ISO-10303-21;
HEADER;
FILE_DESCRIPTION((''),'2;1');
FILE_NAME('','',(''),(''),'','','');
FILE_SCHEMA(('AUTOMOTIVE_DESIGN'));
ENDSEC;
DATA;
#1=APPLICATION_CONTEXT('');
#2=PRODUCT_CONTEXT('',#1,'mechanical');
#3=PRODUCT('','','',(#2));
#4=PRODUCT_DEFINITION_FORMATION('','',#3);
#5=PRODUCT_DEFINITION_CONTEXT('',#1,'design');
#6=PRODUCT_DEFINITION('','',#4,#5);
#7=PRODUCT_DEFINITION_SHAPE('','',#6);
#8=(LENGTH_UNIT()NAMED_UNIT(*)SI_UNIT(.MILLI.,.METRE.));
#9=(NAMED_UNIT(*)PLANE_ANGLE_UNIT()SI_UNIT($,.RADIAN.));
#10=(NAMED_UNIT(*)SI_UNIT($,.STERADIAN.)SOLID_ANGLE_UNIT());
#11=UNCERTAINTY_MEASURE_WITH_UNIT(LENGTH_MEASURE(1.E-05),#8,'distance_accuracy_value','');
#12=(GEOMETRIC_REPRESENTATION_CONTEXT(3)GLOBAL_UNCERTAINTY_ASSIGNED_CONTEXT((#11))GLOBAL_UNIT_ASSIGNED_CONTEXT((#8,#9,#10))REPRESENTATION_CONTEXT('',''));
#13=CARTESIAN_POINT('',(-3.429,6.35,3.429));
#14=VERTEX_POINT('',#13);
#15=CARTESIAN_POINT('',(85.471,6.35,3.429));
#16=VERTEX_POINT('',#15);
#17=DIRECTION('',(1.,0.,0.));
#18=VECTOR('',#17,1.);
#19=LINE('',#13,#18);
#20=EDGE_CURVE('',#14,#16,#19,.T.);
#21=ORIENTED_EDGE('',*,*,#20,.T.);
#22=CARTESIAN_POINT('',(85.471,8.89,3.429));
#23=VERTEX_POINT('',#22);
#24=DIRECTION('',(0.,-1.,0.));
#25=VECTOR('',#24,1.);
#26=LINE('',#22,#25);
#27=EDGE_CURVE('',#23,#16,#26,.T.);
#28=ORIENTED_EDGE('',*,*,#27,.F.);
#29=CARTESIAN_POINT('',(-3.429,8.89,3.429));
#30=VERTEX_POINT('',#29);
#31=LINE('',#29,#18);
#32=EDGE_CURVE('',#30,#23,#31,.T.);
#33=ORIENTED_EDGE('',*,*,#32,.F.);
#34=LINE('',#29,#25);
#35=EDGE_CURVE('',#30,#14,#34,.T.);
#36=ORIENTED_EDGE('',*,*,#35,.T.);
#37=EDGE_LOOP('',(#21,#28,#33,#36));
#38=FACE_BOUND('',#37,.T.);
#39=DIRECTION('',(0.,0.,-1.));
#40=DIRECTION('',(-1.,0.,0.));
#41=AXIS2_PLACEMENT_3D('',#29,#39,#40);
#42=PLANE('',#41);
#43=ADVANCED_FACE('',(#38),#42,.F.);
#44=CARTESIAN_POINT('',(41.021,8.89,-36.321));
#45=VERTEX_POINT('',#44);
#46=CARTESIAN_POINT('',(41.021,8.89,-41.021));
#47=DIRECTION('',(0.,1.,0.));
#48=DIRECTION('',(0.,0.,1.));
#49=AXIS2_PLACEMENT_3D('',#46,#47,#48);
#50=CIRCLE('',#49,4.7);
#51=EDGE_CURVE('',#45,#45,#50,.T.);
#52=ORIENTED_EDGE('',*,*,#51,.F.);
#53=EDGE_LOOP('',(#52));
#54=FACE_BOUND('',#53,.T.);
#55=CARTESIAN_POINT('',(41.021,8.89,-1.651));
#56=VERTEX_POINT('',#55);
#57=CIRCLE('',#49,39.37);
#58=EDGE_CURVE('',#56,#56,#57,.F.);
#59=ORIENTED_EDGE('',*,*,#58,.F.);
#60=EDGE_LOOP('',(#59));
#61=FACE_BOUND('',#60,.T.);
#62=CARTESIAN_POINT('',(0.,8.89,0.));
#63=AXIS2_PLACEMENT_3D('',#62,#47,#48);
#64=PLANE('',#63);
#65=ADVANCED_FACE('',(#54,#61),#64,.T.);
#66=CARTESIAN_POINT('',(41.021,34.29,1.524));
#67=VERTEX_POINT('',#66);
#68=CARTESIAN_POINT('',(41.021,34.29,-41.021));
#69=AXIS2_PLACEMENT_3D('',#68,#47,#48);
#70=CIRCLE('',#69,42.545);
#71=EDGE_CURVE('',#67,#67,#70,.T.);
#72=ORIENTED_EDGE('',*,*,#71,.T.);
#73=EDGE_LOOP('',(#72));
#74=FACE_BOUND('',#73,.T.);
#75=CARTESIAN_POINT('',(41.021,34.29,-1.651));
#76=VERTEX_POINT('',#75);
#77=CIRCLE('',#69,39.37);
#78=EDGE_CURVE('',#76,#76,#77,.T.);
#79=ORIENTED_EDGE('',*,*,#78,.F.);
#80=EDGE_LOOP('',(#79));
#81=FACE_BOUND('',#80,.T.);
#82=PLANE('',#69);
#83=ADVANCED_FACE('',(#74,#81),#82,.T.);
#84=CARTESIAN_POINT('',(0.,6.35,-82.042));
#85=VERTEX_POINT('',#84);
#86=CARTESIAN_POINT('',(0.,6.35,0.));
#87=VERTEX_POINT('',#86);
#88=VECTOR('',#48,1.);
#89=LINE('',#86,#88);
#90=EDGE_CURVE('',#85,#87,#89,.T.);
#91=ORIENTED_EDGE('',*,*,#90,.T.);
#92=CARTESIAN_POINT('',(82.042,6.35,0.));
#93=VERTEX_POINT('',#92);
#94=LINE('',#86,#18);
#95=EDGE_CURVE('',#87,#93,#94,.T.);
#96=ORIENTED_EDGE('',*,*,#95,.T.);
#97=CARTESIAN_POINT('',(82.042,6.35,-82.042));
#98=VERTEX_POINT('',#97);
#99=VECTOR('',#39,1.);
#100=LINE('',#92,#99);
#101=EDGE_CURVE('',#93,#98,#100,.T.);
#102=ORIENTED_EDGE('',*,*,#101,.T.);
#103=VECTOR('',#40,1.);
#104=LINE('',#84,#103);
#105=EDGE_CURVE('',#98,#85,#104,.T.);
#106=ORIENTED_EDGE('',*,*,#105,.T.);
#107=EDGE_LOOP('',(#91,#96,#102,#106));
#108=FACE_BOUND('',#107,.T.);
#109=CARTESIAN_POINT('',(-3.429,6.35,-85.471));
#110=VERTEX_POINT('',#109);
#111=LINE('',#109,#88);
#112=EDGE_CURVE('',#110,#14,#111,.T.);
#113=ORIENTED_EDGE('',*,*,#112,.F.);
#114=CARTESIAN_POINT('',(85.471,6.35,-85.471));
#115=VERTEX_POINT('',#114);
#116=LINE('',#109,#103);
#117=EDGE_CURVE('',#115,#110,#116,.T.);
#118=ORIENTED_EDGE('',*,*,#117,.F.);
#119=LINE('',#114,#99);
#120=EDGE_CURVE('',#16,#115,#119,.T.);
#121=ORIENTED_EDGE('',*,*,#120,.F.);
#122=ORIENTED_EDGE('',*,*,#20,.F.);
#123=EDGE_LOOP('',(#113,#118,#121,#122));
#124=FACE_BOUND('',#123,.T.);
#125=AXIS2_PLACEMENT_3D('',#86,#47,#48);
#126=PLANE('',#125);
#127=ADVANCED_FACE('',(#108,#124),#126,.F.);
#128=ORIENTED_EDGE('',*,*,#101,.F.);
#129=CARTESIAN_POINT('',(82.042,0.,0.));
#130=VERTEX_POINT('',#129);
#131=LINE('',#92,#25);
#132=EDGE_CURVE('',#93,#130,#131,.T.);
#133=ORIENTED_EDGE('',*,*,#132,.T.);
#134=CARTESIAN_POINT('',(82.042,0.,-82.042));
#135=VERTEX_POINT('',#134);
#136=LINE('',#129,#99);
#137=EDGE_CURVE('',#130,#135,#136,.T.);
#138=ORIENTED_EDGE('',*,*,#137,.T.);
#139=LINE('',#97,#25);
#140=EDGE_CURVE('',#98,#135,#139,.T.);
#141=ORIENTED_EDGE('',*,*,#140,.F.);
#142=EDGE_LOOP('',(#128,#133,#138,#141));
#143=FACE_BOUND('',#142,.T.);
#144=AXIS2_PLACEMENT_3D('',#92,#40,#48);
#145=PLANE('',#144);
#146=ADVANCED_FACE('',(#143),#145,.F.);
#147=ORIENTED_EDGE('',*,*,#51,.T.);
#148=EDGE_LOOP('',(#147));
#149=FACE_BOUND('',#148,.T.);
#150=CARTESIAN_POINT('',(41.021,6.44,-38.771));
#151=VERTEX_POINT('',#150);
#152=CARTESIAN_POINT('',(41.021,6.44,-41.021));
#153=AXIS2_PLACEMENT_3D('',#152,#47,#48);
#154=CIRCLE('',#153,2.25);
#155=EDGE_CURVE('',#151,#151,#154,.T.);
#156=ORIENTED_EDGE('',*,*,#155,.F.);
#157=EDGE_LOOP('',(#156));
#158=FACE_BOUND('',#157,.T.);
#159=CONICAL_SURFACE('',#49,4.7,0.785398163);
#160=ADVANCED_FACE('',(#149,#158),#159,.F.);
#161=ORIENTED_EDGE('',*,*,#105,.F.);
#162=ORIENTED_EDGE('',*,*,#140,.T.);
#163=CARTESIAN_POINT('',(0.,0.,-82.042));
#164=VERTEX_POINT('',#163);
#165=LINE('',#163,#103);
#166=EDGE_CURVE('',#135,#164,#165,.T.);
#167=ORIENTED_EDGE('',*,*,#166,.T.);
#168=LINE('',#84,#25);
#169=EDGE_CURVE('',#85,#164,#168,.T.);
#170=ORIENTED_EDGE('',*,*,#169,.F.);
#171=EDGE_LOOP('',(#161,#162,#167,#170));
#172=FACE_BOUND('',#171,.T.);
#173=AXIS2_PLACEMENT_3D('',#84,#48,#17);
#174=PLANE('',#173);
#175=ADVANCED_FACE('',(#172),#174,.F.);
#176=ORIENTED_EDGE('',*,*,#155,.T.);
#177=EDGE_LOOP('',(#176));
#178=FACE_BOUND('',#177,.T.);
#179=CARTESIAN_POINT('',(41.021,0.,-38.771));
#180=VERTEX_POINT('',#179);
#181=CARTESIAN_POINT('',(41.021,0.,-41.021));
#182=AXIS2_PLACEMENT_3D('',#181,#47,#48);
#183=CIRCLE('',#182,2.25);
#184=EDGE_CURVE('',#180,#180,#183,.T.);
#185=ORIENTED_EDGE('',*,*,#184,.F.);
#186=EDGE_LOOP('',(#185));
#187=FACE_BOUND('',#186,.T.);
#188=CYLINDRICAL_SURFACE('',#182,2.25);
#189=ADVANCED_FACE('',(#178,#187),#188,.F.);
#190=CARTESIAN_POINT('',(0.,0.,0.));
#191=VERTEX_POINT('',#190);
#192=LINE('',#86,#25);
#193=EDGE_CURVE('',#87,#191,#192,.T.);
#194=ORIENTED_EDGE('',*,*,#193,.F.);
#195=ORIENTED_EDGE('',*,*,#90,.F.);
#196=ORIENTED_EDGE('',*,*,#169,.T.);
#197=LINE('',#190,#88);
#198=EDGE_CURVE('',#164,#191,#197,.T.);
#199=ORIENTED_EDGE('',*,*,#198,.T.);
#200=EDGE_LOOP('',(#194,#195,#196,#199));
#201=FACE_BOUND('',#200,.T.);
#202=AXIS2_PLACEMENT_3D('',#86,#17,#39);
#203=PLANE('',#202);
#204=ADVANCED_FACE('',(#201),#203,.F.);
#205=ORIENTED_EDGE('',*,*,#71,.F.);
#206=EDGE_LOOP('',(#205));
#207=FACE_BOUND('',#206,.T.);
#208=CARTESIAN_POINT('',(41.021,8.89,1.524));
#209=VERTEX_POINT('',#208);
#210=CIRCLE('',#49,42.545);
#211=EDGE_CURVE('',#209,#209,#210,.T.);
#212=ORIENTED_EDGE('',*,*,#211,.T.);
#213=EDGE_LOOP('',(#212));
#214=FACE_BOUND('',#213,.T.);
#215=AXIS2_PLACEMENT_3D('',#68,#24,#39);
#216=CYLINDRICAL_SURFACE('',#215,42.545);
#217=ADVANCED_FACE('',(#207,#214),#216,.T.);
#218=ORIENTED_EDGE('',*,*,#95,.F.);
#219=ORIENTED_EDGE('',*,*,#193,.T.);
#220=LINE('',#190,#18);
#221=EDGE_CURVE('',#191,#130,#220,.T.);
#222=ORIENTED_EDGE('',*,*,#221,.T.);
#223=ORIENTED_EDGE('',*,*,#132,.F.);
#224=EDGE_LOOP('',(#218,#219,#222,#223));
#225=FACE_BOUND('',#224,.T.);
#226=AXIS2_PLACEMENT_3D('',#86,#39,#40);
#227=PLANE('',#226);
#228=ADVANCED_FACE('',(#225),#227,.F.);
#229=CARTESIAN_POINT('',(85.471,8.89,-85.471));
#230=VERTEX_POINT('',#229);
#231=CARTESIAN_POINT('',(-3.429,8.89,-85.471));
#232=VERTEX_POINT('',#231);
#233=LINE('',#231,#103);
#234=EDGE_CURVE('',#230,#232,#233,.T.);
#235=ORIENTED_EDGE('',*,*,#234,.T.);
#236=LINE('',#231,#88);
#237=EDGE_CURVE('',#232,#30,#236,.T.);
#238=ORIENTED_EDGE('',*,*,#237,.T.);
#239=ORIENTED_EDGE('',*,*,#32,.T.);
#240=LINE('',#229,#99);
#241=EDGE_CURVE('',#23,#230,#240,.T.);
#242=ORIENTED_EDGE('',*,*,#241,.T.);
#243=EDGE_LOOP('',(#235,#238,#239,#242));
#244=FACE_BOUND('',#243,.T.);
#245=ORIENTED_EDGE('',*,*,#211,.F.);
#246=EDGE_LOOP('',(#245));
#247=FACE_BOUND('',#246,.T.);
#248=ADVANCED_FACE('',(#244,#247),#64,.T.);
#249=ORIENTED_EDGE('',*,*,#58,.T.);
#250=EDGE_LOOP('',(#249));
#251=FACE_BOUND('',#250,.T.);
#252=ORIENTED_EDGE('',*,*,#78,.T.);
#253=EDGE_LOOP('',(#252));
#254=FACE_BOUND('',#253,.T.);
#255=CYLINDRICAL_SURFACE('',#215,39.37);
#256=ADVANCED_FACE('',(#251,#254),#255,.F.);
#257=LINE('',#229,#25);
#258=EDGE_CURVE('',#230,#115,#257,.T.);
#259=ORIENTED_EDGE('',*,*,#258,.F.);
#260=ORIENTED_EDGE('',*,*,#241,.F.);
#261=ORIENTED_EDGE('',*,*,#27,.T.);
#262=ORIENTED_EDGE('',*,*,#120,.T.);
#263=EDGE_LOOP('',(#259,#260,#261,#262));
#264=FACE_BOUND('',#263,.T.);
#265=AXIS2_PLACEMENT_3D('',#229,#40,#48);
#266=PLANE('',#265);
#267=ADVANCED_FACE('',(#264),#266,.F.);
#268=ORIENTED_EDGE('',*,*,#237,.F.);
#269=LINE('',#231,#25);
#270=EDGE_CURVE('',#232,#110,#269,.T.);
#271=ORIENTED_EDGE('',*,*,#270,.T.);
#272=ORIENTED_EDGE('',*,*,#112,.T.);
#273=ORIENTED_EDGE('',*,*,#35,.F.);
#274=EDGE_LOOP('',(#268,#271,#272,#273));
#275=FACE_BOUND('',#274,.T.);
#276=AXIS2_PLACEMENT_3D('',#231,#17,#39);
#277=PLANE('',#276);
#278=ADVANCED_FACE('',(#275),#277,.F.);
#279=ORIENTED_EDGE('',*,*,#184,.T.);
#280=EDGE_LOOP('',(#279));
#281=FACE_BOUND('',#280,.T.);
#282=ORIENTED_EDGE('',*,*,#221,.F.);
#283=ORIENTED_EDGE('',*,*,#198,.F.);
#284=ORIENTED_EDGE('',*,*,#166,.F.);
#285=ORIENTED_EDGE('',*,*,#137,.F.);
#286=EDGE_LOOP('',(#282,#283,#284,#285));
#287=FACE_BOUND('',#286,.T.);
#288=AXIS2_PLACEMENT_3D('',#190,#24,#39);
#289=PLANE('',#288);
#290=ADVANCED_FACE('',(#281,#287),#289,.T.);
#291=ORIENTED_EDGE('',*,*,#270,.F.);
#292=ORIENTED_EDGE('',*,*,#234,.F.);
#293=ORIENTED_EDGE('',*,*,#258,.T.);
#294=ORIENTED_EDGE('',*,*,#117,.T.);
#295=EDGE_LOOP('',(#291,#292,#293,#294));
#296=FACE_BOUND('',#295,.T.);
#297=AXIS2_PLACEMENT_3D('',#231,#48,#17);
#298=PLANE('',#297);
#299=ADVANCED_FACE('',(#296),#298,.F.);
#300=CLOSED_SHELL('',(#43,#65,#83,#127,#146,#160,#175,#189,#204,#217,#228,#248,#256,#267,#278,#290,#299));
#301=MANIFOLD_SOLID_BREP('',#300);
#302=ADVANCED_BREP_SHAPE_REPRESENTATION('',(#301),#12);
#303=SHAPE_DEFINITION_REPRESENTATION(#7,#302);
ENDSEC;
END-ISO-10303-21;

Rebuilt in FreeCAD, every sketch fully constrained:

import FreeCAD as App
import Part
import Sketcher

V = App.Vector
Q = App.Units.Quantity


def add_polygon(sketch, points):
    """Adds a closed chain of lines whose ends are joined by coincident constraints."""
    first, n = sketch.GeometryCount, len(points)
    for a, b in zip(points, points[1:] + points[:1]):
        sketch.addGeometry(Part.LineSegment(App.Vector(*a, 0), App.Vector(*b, 0)), False)
    for i in range(n):
        sketch.addConstraint(Sketcher.Constraint("Coincident", first + i, 2, first + (i + 1) % n, 1))

doc = App.newDocument("Part")
params = doc.addObject("Spreadsheet::Sheet", "Params")
for row, (alias, value) in enumerate([
    ("sketch1_width", "3.23 in"),
    ("pad1_length", "0.25 in"),
    ("sketch2_width", "3.5 in"),
    ("pad2_length", "0.1 in"),
    ("sketch4_diameter", "3.1 in"),
    ("sketch4_diameter2", "3.35 in"),
    ("pad3_length", "1 in"),
    ("hole_diameter", "4.5 mm"),
    ("hole_depth", "3.99999 mm"),
    ("hole_csink_diameter", "9.4 mm"),
], start=1):
    params.set(f"A{row}", alias)
    params.set(f"B{row}", "=" + value)
    params.setAlias(f"B{row}", alias)

body = doc.addObject("PartDesign::Body", "Body")

sketch1 = body.newObject("Sketcher::SketchObject", "Sketch")
sketch1.AttachmentSupport = (doc.getObject("XZ_Plane"), [""])
sketch1.MapMode = "FlatFace"
add_polygon(sketch1, [(0, -82), (0, 0), (82, 0), (82, -82)])
sketch1.addConstraint([
    Sketcher.Constraint("Vertical", 0),
    Sketcher.Constraint("Horizontal", 1),
    Sketcher.Constraint("Vertical", 2),
    Sketcher.Constraint("Horizontal", 3),
    Sketcher.Constraint("Coincident", 0, 2, -1, 1),
    Sketcher.Constraint("Equal", 3, 0),
    Sketcher.Constraint("DistanceX", 1, 1, 1, 2, Q("3.23 in")),
])
sketch1.setExpression("Constraints[10]", "Params.sketch1_width")
pad1 = body.newObject("PartDesign::Pad", "Pad")
pad1.Profile = sketch1
pad1.setExpression("Length", "Params.pad1_length")
pad1.Reversed = True

sketch2 = body.newObject("Sketcher::SketchObject", "Sketch001")
sketch2.AttachmentSupport = (doc.getObject("XZ_Plane"), [""])
sketch2.MapMode = "FlatFace"
sketch2.AttachmentOffset = App.Placement(V(0, 0, -0.25 * 25.4), App.Rotation())
add_polygon(sketch2, [(-3, -85), (-3, 3), (85, 3), (85, -85)])
sketch2.addConstraint([
    Sketcher.Constraint("Vertical", 0),
    Sketcher.Constraint("Horizontal", 1),
    Sketcher.Constraint("Vertical", 2),
    Sketcher.Constraint("Horizontal", 3),
    Sketcher.Constraint("Equal", 3, 0),
    Sketcher.Constraint("DistanceX", 1, 1, 1, 2, Q("3.5 in")),
    Sketcher.Constraint("DistanceX", 0, 2, -1, 1, Q("0.135 in")),
    Sketcher.Constraint("DistanceY", -1, 1, 0, 2, Q("0.135 in")),
])
sketch2.setExpression("Constraints[9]", "Params.sketch2_width")
pad2 = body.newObject("PartDesign::Pad", "Pad001")
pad2.Profile = sketch2
pad2.setExpression("Length", "Params.pad2_length")
pad2.Reversed = True

sketch3 = body.newObject("Sketcher::SketchObject", "Sketch002")
sketch3.AttachmentSupport = (doc.getObject("XZ_Plane"), [""])
sketch3.MapMode = "FlatFace"
sketch3.AttachmentOffset = App.Placement(V(0, 0, -0.35 * 25.4), App.Rotation())
sketch3.addGeometry(Part.Circle(V(41, -41, 0), V(0, 0, 1), 2.2), False)
sketch3.addConstraint([
    Sketcher.Constraint("Diameter", 0, 4.5),
    Sketcher.Constraint("DistanceX", -1, 1, 0, 3, Q("1.615 in")),
    Sketcher.Constraint("DistanceY", 0, 3, -1, 1, Q("1.615 in")),
])
pocket1 = body.newObject("PartDesign::Pocket", "Pocket")
pocket1.Profile = sketch3
pocket1.Type = "ThroughAll"
pocket1.Reversed = True

sketch4 = body.newObject("Sketcher::SketchObject", "Sketch003")
sketch4.AttachmentSupport = (doc.getObject("XZ_Plane"), [""])
sketch4.MapMode = "FlatFace"
sketch4.AttachmentOffset = App.Placement(V(0, 0, -0.35 * 25.4), App.Rotation())
sketch4.addGeometry([
    Part.Circle(V(41, -41, 0), V(0, 0, 1), 43),
    Part.Circle(V(41, -41, 0), V(0, 0, 1), 39),
], False)
sketch4.addConstraint([
    Sketcher.Constraint("Coincident", 1, 3, 0, 3),
    Sketcher.Constraint("Diameter", 1, Q("3.1 in")),
    Sketcher.Constraint("Diameter", 0, Q("3.35 in")),
    Sketcher.Constraint("DistanceX", -1, 1, 0, 3, Q("1.615 in")),
    Sketcher.Constraint("DistanceY", 0, 3, -1, 1, Q("1.615 in")),
])
sketch4.setExpression("Constraints[1]", "Params.sketch4_diameter")
sketch4.setExpression("Constraints[2]", "Params.sketch4_diameter2")
pad3 = body.newObject("PartDesign::Pad", "Pad002")
pad3.Profile = sketch4
pad3.setExpression("Length", "Params.pad3_length")
pad3.Reversed = True

sketch5 = body.newObject("Sketcher::SketchObject", "Sketch004")
sketch5.AttachmentSupport = (doc.getObject("XZ_Plane"), [""])
sketch5.MapMode = "FlatFace"
sketch5.AttachmentOffset = App.Placement(V(0, 0, -0.35 * 25.4), App.Rotation())
sketch5.addGeometry(Part.Circle(V(41, -41, 0), V(0, 0, 1), 2.2), False)
sketch5.addConstraint([
    Sketcher.Constraint("Diameter", 0, 4.5),
    Sketcher.Constraint("DistanceX", -1, 1, 0, 3, Q("1.615 in")),
    Sketcher.Constraint("DistanceY", 0, 3, -1, 1, Q("1.615 in")),
])
doc.recompute()
hole = body.newObject("PartDesign::Hole", "Hole")
hole.Profile = sketch5
hole.ThreadType = "None"
hole.setExpression("Diameter", "Params.hole_diameter")
hole.DepthType = "Dimension"
hole.setExpression("Depth", "Params.hole_depth")
hole.DrillPoint = "Angled"
hole.DrillPointAngle = 118
hole.HoleCutType = "Countersink"
hole.setExpression("HoleCutDiameter", "Params.hole_csink_diameter")
hole.HoleCutCountersinkAngle = 90
hole.Reversed = True

doc.recompute()
